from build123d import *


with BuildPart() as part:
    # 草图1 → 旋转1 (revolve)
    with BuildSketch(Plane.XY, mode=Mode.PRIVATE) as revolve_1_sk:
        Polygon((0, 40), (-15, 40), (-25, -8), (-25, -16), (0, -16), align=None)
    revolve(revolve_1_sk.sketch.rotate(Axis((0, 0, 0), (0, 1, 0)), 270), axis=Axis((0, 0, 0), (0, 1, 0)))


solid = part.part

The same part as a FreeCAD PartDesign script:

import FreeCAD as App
import Part
import Sketcher

V = App.Vector

doc = App.newDocument("Part")
body = doc.addObject("PartDesign::Body", "Body")

# Sketch on XY plane
sketch1 = doc.addObject("Sketcher::SketchObject", "Sketch")
body.addObject(sketch1)
sketch1.AttachmentSupport = (doc.XY_Plane, [""])
sketch1.MapMode = "FlatFace"
sketch1.addGeometry([
    Part.LineSegment(V(0, 40, 0), V(-15, 40, 0)),  # 0
    Part.LineSegment(V(-15, 40, 0), V(-25, -8, 0)),  # 1
    Part.LineSegment(V(-25, -8, 0), V(-25, -16, 0)),  # 2
    Part.LineSegment(V(-25, -16, 0), V(0, -16, 0)),  # 3
    Part.LineSegment(V(0, -16, 0), V(0, 40, 0)),  # 4
], False)
sketch1.addConstraint([
    Sketcher.Constraint("Coincident", 0, 2, 1, 1),
    Sketcher.Constraint("Coincident", 1, 2, 2, 1),
    Sketcher.Constraint("Coincident", 2, 2, 3, 1),
    Sketcher.Constraint("Coincident", 3, 2, 4, 1),
    Sketcher.Constraint("Coincident", 4, 2, 0, 1),
    Sketcher.Constraint("Horizontal", 0),
    Sketcher.Constraint("Vertical", 2),
    Sketcher.Constraint("Horizontal", 3),
    Sketcher.Constraint("Vertical", 4),
    Sketcher.Constraint("PointOnObject", 3, 2, -2),
    Sketcher.Constraint("DistanceX", 0, 2, 0, 1, 15.0),
    Sketcher.Constraint("DistanceX", 3, 1, 3, 2, 25.0),
    Sketcher.Constraint("DistanceY", 2, 2, 2, 1, 8.0),
    Sketcher.Constraint("DistanceY", 4, 1, 4, 2, 56.0),
    Sketcher.Constraint("DistanceY", -1, 1, 0, 2, 40.0),
])
revolution = doc.addObject("PartDesign::Revolution", "Revolution")
body.addObject(revolution)
revolution.Profile = sketch1
revolution.ReferenceAxis = (sketch1, ["V_Axis"])
revolution.Angle = 360

doc.recompute()
